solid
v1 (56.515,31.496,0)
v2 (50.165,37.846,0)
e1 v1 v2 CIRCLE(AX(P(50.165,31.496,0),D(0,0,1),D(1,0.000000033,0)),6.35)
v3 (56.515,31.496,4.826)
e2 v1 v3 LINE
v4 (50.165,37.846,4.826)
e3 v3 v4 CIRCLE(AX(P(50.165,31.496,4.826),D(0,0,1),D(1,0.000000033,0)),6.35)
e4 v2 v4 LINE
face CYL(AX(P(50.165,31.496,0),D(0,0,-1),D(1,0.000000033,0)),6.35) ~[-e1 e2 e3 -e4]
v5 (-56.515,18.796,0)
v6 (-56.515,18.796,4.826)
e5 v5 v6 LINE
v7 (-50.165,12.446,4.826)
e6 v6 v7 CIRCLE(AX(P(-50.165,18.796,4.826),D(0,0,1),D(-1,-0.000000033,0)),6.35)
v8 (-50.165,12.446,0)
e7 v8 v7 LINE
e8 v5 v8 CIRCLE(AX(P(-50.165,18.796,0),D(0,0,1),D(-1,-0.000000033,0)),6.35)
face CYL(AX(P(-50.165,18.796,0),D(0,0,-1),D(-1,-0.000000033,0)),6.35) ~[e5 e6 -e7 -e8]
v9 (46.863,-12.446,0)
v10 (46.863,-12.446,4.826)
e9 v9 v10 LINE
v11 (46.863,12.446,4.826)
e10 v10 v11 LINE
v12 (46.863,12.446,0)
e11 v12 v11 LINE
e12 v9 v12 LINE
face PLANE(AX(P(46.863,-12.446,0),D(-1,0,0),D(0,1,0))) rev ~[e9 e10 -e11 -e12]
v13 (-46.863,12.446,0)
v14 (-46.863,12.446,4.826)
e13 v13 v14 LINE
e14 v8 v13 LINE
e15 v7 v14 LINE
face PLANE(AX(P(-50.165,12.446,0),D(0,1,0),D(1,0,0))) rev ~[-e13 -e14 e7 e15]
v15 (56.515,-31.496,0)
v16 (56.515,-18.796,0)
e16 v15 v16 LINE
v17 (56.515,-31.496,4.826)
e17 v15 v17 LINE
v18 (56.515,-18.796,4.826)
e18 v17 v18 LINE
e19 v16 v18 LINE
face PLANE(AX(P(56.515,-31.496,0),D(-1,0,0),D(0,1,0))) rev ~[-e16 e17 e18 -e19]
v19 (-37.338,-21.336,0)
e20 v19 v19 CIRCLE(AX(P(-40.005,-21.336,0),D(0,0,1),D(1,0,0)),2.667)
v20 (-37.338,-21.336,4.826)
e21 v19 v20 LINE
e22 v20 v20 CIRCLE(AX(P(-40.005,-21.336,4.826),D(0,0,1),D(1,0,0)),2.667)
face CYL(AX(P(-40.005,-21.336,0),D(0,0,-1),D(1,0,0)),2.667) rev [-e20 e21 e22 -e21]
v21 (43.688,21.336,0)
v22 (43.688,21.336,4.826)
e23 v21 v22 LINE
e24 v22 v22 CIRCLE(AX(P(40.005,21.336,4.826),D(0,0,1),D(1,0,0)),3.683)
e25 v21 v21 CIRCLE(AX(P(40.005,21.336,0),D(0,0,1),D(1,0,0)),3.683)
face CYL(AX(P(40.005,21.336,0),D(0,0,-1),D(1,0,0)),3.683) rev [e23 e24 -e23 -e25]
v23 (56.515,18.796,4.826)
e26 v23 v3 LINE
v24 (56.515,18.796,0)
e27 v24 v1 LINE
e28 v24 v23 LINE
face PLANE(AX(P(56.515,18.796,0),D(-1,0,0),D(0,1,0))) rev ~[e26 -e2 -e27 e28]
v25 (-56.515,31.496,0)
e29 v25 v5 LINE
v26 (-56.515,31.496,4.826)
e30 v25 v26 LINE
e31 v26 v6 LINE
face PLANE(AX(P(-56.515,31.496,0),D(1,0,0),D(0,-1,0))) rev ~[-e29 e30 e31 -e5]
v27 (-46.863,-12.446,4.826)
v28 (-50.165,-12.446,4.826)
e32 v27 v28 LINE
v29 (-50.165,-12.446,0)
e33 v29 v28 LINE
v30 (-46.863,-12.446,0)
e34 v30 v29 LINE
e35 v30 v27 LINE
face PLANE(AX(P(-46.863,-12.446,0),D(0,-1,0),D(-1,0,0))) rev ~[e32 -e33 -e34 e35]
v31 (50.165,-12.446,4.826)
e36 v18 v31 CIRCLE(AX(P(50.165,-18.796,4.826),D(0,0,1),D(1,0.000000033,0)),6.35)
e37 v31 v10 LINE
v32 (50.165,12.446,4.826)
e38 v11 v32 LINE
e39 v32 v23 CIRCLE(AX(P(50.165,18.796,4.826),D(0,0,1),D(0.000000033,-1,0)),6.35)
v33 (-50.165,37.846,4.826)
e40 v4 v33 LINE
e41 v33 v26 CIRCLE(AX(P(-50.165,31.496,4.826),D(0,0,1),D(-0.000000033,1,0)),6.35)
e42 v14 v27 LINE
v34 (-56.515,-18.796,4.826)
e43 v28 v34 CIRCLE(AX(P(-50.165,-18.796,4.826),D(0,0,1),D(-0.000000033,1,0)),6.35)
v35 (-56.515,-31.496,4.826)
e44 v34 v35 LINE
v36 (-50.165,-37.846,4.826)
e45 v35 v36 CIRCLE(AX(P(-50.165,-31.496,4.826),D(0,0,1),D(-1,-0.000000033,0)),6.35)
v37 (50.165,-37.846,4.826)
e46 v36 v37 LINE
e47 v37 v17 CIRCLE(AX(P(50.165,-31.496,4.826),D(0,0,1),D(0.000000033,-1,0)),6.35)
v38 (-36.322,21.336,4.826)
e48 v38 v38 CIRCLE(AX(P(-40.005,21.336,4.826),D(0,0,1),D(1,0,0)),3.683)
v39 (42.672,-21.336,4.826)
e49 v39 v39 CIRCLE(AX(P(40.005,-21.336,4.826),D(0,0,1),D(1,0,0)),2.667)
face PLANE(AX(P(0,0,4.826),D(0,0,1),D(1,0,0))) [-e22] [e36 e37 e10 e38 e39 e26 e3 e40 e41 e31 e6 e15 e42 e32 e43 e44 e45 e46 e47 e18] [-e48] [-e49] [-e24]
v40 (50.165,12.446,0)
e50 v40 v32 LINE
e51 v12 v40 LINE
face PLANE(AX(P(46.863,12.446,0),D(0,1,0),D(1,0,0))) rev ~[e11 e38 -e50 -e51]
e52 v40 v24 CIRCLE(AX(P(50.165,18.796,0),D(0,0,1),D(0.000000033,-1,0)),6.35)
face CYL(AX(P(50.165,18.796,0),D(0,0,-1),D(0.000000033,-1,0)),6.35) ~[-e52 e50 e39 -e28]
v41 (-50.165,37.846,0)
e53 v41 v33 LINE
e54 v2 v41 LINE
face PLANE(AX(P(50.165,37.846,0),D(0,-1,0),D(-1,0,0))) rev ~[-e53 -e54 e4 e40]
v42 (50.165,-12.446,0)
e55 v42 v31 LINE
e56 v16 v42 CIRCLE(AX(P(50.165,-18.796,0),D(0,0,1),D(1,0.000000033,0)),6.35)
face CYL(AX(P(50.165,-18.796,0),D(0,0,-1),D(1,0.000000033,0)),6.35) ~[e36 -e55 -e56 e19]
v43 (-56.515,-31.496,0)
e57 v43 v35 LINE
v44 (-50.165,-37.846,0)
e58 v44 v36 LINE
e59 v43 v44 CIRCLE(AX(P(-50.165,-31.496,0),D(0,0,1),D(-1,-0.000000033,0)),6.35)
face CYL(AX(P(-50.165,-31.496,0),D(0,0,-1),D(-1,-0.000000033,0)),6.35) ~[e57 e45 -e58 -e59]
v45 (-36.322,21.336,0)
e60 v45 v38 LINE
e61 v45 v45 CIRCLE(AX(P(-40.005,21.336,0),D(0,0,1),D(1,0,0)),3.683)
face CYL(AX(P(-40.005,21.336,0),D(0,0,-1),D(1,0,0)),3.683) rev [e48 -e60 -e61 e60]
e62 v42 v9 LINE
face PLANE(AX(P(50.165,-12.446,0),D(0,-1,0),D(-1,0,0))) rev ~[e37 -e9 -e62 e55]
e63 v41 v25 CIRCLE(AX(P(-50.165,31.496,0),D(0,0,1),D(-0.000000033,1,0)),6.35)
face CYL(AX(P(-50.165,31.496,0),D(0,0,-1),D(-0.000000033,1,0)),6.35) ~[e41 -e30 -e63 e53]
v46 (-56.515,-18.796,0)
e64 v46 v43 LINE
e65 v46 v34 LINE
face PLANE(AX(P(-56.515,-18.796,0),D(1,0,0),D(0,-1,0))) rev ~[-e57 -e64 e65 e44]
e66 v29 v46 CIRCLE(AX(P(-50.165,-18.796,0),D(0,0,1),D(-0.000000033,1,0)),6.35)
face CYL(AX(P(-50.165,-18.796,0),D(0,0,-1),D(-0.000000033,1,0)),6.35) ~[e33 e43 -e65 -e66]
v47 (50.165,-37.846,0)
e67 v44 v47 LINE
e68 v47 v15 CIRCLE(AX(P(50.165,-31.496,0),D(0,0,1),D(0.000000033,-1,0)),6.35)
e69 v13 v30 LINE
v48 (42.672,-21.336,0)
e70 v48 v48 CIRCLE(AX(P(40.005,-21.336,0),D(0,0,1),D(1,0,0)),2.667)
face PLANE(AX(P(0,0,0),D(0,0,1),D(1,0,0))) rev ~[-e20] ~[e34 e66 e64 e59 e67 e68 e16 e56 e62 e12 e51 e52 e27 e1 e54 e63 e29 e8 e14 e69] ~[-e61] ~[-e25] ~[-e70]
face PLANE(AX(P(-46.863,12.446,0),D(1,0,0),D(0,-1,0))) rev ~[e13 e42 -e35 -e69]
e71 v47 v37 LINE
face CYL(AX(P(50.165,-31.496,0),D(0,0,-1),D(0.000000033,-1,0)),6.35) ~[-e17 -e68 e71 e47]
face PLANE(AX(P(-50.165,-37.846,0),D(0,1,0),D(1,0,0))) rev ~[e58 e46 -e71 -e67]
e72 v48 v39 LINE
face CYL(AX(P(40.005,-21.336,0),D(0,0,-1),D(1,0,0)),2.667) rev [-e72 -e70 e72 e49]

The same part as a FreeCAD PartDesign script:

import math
import FreeCAD as App
import Part
import Sketcher

V = App.Vector
Q = App.Units.Quantity

doc = App.newDocument("Part")
body = doc.addObject("PartDesign::Body", "Body")

sketch1 = body.newObject("Sketcher::SketchObject", "Sketch")
sketch1.AttachmentSupport = (doc.getObject("XY_Plane"), [""])
sketch1.MapMode = "FlatFace"
sketch1.addGeometry([
    Part.LineSegment(V(50.2, 37.8, 0), V(-50.2, 37.8, 0)),
    Part.ArcOfCircle(Part.Circle(V(-50.2, 31.5, 0), V(0, 0, 1), 6.4), math.radians(90), math.radians(180)),
    Part.LineSegment(V(-56.5, 31.5, 0), V(-56.5, 18.8, 0)),
    Part.ArcOfCircle(Part.Circle(V(-50.2, 18.8, 0), V(0, 0, 1), 6.4), math.radians(-180), math.radians(-90)),
    Part.LineSegment(V(-50.2, 12.4, 0), V(-46.9, 12.4, 0)),
    Part.LineSegment(V(-46.9, 12.4, 0), V(-46.9, -12.4, 0)),
    Part.LineSegment(V(-46.9, -12.4, 0), V(-50.2, -12.4, 0)),
    Part.ArcOfCircle(Part.Circle(V(-50.2, -18.8, 0), V(0, 0, 1), 6.4), math.radians(90), math.radians(180)),
    Part.LineSegment(V(-56.5, -18.8, 0), V(-56.5, -31.5, 0)),
    Part.ArcOfCircle(Part.Circle(V(-50.2, -31.5, 0), V(0, 0, 1), 6.4), math.radians(-180), math.radians(-90)),
    Part.LineSegment(V(-50.2, -37.8, 0), V(50.2, -37.8, 0)),
    Part.ArcOfCircle(Part.Circle(V(50.2, -31.5, 0), V(0, 0, 1), 6.4), math.radians(-90), math.radians(0)),
    Part.LineSegment(V(56.5, -31.5, 0), V(56.5, -18.8, 0)),
    Part.ArcOfCircle(Part.Circle(V(50.2, -18.8, 0), V(0, 0, 1), 6.4), math.radians(0), math.radians(90)),
    Part.LineSegment(V(50.2, -12.4, 0), V(46.9, -12.4, 0)),
    Part.LineSegment(V(46.9, -12.4, 0), V(46.9, 12.4, 0)),
    Part.LineSegment(V(46.9, 12.4, 0), V(50.2, 12.4, 0)),
    Part.ArcOfCircle(Part.Circle(V(50.2, 18.8, 0), V(0, 0, 1), 6.4), math.radians(-90), math.radians(0)),
    Part.LineSegment(V(56.5, 18.8, 0), V(56.5, 31.5, 0)),
    Part.ArcOfCircle(Part.Circle(V(50.2, 31.5, 0), V(0, 0, 1), 6.4), math.radians(0), math.radians(90)),
    Part.Circle(V(-40, -21.3, 0), V(0, 0, 1), 2.7),
    Part.Circle(V(40, -21.3, 0), V(0, 0, 1), 2.7),
    Part.Circle(V(-40, 21.3, 0), V(0, 0, 1), 3.7),
    Part.Circle(V(40, 21.3, 0), V(0, 0, 1), 3.7),
], False)
sketch1.addConstraint([
    Sketcher.Constraint("Tangent", 0, 2, 1, 1),
    Sketcher.Constraint("Tangent", 1, 2, 2, 1),
    Sketcher.Constraint("Tangent", 2, 2, 3, 1),
    Sketcher.Constraint("Tangent", 3, 2, 4, 1),
    Sketcher.Constraint("Coincident", 4, 2, 5, 1),
    Sketcher.Constraint("Coincident", 5, 2, 6, 1),
    Sketcher.Constraint("Tangent", 6, 2, 7, 1),
    Sketcher.Constraint("Tangent", 7, 2, 8, 1),
    Sketcher.Constraint("Tangent", 8, 2, 9, 1),
    Sketcher.Constraint("Tangent", 9, 2, 10, 1),
    Sketcher.Constraint("Tangent", 10, 2, 11, 1),
    Sketcher.Constraint("Tangent", 11, 2, 12, 1),
    Sketcher.Constraint("Tangent", 12, 2, 13, 1),
    Sketcher.Constraint("Tangent", 13, 2, 14, 1),
    Sketcher.Constraint("Coincident", 14, 2, 15, 1),
    Sketcher.Constraint("Coincident", 15, 2, 16, 1),
    Sketcher.Constraint("Tangent", 16, 2, 17, 1),
    Sketcher.Constraint("Tangent", 17, 2, 18, 1),
    Sketcher.Constraint("Tangent", 18, 2, 19, 1),
    Sketcher.Constraint("Tangent", 19, 2, 0, 1),
    Sketcher.Constraint("Horizontal", 0),
    Sketcher.Constraint("Vertical", 2),
    Sketcher.Constraint("Horizontal", 4),
    Sketcher.Constraint("Vertical", 5),
    Sketcher.Constraint("Horizontal", 6),
    Sketcher.Constraint("Vertical", 8),
    Sketcher.Constraint("Horizontal", 10),
    Sketcher.Constraint("Vertical", 12),
    Sketcher.Constraint("Horizontal", 14),
    Sketcher.Constraint("Vertical", 15),
    Sketcher.Constraint("Horizontal", 16),
    Sketcher.Constraint("Vertical", 18),
    Sketcher.Constraint("Equal", 1, 3),
    Sketcher.Constraint("Equal", 3, 7),
    Sketcher.Constraint("Equal", 7, 9),
    Sketcher.Constraint("Equal", 9, 11),
    Sketcher.Constraint("Equal", 11, 13),
    Sketcher.Constraint("Equal", 13, 17),
    Sketcher.Constraint("Equal", 17, 19),
    Sketcher.Constraint("Equal", 20, 21),
    Sketcher.Constraint("Equal", 22, 23),
    Sketcher.Constraint("Symmetric", 1, 3, 11, 3, -1, 1),
    Sketcher.Constraint("Symmetric", 7, 3, 17, 3, -1, 1),
    Sketcher.Constraint("Symmetric", 21, 3, 22, 3, -1, 1),
    Sketcher.Constraint("Symmetric", 20, 3, 23, 3, -1, 1),
    Sketcher.Constraint("Symmetric", 4, 2, 14, 2, -1, 1),
    Sketcher.Constraint("Symmetric", 7, 3, 13, 3, -2),
    Sketcher.Constraint("Symmetric", 20, 3, 21, 3, -2),
    Sketcher.Constraint("Diameter", 20, Q("0.21 in")),
    Sketcher.Constraint("Diameter", 22, Q("0.29 in")),
    Sketcher.Constraint("Radius", 1, Q("0.25 in")),
    Sketcher.Constraint("DistanceY", 2, 2, 2, 1, Q("0.5 in")),
    Sketcher.Constraint("DistanceX", 0, 2, 0, 1, Q("3.95 in")),
    Sketcher.Constraint("DistanceX", 4, 1, 4, 2, Q("0.13 in")),
    Sketcher.Constraint("DistanceY", 5, 2, 5, 1, Q("0.98 in")),
    Sketcher.Constraint("DistanceX", 7, 3, 20, 3, Q("0.4 in")),
    Sketcher.Constraint("DistanceY", 20, 3, 7, 3, Q("0.1 in")),
])
pad1 = body.newObject("PartDesign::Pad", "Pad")
pad1.Profile = sketch1
pad1.Length = Q("0.19 in")

doc.recompute()
